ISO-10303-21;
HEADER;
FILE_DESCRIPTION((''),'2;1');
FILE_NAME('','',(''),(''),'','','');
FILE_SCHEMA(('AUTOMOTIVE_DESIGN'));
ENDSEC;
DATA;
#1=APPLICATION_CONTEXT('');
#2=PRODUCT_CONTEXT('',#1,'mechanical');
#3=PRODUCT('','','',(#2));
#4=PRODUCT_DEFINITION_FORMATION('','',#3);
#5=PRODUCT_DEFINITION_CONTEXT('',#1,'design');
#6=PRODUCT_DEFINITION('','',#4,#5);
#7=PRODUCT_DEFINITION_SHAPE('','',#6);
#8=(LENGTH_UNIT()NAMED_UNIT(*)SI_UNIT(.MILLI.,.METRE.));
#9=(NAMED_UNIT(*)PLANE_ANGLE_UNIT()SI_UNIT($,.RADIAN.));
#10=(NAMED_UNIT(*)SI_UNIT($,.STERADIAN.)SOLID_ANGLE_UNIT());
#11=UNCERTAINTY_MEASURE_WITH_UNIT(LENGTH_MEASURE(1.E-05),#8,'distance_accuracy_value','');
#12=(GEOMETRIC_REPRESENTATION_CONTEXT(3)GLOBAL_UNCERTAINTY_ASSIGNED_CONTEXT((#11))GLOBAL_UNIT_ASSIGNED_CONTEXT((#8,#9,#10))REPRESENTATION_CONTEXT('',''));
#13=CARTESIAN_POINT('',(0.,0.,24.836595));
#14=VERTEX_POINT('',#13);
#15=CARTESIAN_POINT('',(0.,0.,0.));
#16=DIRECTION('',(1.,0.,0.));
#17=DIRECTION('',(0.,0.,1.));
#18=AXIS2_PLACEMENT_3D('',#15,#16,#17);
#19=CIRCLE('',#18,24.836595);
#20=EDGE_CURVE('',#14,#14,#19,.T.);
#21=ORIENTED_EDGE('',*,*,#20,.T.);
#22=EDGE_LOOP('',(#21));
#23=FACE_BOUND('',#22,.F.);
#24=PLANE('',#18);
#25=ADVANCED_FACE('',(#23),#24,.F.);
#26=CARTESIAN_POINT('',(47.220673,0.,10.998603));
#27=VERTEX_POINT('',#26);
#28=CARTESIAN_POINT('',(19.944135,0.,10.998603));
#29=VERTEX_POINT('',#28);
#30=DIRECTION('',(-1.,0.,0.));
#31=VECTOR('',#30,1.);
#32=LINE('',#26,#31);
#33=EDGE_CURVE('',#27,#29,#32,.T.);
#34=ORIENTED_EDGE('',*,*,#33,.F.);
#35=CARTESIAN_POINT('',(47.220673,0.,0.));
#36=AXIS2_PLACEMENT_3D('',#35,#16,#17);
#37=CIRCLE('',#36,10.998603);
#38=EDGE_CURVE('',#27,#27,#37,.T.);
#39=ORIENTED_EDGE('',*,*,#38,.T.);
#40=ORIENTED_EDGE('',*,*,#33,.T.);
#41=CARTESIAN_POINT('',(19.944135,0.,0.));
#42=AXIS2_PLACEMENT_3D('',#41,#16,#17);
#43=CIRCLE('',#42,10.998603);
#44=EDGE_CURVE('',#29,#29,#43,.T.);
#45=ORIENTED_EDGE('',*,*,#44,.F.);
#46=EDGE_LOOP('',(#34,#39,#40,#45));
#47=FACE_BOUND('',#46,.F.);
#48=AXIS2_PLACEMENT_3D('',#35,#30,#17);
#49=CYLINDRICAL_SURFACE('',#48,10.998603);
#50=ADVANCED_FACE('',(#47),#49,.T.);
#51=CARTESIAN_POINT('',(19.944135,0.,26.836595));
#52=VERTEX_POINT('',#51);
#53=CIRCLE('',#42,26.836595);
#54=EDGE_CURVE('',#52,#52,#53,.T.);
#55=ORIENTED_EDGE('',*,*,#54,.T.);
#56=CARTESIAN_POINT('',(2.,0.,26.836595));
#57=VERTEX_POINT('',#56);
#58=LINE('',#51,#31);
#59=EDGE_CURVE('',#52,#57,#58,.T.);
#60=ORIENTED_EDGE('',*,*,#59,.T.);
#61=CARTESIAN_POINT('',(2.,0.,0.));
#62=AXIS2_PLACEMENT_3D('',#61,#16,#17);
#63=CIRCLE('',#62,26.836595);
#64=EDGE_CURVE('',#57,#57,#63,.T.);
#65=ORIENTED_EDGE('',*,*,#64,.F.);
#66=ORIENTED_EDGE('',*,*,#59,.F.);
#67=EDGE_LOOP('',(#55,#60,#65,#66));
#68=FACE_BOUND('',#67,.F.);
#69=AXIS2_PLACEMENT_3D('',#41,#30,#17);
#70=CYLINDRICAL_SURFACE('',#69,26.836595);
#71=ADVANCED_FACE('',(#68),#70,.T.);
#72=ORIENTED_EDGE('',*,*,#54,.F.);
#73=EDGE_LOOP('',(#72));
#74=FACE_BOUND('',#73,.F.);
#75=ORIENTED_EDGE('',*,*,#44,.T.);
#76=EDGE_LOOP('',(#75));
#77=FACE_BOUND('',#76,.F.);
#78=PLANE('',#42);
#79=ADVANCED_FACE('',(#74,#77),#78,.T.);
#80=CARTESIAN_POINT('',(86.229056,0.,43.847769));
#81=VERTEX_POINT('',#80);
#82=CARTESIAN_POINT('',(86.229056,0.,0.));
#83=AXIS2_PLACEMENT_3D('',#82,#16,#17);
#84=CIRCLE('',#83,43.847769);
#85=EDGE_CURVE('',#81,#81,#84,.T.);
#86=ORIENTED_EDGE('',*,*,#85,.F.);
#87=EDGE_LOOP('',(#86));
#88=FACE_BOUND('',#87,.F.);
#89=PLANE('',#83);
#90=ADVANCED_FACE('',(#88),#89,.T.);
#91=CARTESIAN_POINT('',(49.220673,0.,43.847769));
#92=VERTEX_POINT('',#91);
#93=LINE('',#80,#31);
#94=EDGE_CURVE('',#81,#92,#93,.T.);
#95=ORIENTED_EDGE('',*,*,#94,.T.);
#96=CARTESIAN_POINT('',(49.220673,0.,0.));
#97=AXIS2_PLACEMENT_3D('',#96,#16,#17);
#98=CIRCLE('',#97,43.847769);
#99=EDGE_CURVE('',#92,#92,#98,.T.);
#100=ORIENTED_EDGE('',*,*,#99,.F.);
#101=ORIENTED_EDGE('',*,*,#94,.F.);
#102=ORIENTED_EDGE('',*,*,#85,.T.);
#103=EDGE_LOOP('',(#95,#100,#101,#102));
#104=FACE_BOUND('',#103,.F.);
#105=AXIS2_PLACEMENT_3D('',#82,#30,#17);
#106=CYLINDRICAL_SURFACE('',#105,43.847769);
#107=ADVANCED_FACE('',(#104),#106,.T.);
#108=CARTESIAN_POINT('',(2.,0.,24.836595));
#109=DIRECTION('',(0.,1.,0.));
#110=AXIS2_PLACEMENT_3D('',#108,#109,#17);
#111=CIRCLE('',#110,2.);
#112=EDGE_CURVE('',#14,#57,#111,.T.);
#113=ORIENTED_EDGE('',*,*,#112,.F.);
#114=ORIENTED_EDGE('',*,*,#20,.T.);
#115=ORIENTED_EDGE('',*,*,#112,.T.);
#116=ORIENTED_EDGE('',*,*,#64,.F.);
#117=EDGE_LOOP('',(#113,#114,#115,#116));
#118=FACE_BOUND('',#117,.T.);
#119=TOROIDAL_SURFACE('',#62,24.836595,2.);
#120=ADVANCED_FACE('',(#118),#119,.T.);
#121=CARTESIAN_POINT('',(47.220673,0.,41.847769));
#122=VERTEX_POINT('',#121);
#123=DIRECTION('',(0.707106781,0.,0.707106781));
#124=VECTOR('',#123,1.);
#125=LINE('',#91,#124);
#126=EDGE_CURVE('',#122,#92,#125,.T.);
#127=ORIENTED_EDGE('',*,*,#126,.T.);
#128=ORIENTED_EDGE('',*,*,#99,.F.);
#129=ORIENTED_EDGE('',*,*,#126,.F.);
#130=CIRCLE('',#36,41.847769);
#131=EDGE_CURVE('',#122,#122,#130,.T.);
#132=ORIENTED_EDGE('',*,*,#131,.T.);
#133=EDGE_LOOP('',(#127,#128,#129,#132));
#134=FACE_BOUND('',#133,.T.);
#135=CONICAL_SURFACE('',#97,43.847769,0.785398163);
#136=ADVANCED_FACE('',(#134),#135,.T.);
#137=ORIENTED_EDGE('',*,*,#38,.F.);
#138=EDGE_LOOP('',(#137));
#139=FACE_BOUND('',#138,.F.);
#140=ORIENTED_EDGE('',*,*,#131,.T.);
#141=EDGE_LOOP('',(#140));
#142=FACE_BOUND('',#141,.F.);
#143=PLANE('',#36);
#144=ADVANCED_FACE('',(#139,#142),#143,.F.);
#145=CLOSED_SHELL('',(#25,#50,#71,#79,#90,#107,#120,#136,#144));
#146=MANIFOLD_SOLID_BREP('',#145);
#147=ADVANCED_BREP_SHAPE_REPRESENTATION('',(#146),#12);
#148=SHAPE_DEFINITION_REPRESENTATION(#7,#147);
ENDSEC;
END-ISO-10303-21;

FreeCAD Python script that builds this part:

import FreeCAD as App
import Part
import Sketcher


def edges_at(feature, points):
    """Names of the edges that pass closest to the given points."""
    edges = feature.Shape.Edges
    near = lambda p: min(range(len(edges)), key=lambda i: edges[i].distToShape(Part.Vertex(*p))[0])
    return sorted({f"Edge{near(p) + 1}" for p in points})


def add_polygon(sketch, points):
    """Adds a closed chain of lines whose ends are joined by coincident constraints."""
    first, n = sketch.GeometryCount, len(points)
    for a, b in zip(points, points[1:] + points[:1]):
        sketch.addGeometry(Part.LineSegment(App.Vector(*a, 0), App.Vector(*b, 0)), False)
    for i in range(n):
        sketch.addConstraint(Sketcher.Constraint("Coincident", first + i, 2, first + (i + 1) % n, 1))

doc = App.newDocument("Part")
params = doc.addObject("Spreadsheet::Sheet", "Params")
for row, (alias, value) in enumerate([
    ("revolution_angle", "360 deg"),
    ("fillet_radius", "2 mm"),
    ("chamfer_size", "2 mm"),
], start=1):
    params.set(f"A{row}", alias)
    params.set(f"B{row}", "=" + value)
    params.setAlias(f"B{row}", alias)

body = doc.addObject("PartDesign::Body", "Body")

# Sketch on XZ plane
sketch1 = doc.addObject("Sketcher::SketchObject", "Sketch")
body.addObject(sketch1)
sketch1.AttachmentSupport = (doc.XZ_Plane, [""])
sketch1.MapMode = "FlatFace"
add_polygon(sketch1, [(0, 27), (0, 0), (86, 0), (86, 44), (47, 44), (47, 11), (20, 11), (20, 27)])  # lines 0-7
sketch1.addConstraint([
    Sketcher.Constraint("Vertical", 0),
    Sketcher.Constraint("Horizontal", 1),
    Sketcher.Constraint("Vertical", 2),
    Sketcher.Constraint("Horizontal", 3),
    Sketcher.Constraint("Vertical", 4),
    Sketcher.Constraint("Horizontal", 5),
    Sketcher.Constraint("Vertical", 6),
    Sketcher.Constraint("Horizontal", 7),
    Sketcher.Constraint("Coincident", 0, 2, -1, 1),
    Sketcher.Constraint("DistanceY", 2, 1, 2, 2, 43.847769),
    Sketcher.Constraint("DistanceX", 1, 1, 1, 2, 86.229056),
    Sketcher.Constraint("DistanceX", 3, 2, 3, 1, 39.008383),
    Sketcher.Constraint("DistanceX", 5, 2, 5, 1, 27.276538),
    Sketcher.Constraint("DistanceY", 0, 2, 0, 1, 26.836595),
    Sketcher.Constraint("DistanceY", 4, 2, 4, 1, 32.849166),
])
revolution = doc.addObject("PartDesign::Revolution", "Revolution")
body.addObject(revolution)
revolution.Profile = sketch1
revolution.ReferenceAxis = (sketch1, ["H_Axis"])
revolution.setExpression("Angle", "Params.revolution_angle")
doc.recompute()

fillet = doc.addObject("PartDesign::Fillet", "Fillet")
body.addObject(fillet)
fillet.Base = (revolution, edges_at(revolution, [(0, 0, -26.837)]))
fillet.setExpression("Radius", "Params.fillet_radius")
doc.recompute()

chamfer = doc.addObject("PartDesign::Chamfer", "Chamfer")
body.addObject(chamfer)
chamfer.Base = (fillet, edges_at(fillet, [(47.221, 0, -43.848)]))
chamfer.setExpression("Size", "Params.chamfer_size")

doc.recompute()
